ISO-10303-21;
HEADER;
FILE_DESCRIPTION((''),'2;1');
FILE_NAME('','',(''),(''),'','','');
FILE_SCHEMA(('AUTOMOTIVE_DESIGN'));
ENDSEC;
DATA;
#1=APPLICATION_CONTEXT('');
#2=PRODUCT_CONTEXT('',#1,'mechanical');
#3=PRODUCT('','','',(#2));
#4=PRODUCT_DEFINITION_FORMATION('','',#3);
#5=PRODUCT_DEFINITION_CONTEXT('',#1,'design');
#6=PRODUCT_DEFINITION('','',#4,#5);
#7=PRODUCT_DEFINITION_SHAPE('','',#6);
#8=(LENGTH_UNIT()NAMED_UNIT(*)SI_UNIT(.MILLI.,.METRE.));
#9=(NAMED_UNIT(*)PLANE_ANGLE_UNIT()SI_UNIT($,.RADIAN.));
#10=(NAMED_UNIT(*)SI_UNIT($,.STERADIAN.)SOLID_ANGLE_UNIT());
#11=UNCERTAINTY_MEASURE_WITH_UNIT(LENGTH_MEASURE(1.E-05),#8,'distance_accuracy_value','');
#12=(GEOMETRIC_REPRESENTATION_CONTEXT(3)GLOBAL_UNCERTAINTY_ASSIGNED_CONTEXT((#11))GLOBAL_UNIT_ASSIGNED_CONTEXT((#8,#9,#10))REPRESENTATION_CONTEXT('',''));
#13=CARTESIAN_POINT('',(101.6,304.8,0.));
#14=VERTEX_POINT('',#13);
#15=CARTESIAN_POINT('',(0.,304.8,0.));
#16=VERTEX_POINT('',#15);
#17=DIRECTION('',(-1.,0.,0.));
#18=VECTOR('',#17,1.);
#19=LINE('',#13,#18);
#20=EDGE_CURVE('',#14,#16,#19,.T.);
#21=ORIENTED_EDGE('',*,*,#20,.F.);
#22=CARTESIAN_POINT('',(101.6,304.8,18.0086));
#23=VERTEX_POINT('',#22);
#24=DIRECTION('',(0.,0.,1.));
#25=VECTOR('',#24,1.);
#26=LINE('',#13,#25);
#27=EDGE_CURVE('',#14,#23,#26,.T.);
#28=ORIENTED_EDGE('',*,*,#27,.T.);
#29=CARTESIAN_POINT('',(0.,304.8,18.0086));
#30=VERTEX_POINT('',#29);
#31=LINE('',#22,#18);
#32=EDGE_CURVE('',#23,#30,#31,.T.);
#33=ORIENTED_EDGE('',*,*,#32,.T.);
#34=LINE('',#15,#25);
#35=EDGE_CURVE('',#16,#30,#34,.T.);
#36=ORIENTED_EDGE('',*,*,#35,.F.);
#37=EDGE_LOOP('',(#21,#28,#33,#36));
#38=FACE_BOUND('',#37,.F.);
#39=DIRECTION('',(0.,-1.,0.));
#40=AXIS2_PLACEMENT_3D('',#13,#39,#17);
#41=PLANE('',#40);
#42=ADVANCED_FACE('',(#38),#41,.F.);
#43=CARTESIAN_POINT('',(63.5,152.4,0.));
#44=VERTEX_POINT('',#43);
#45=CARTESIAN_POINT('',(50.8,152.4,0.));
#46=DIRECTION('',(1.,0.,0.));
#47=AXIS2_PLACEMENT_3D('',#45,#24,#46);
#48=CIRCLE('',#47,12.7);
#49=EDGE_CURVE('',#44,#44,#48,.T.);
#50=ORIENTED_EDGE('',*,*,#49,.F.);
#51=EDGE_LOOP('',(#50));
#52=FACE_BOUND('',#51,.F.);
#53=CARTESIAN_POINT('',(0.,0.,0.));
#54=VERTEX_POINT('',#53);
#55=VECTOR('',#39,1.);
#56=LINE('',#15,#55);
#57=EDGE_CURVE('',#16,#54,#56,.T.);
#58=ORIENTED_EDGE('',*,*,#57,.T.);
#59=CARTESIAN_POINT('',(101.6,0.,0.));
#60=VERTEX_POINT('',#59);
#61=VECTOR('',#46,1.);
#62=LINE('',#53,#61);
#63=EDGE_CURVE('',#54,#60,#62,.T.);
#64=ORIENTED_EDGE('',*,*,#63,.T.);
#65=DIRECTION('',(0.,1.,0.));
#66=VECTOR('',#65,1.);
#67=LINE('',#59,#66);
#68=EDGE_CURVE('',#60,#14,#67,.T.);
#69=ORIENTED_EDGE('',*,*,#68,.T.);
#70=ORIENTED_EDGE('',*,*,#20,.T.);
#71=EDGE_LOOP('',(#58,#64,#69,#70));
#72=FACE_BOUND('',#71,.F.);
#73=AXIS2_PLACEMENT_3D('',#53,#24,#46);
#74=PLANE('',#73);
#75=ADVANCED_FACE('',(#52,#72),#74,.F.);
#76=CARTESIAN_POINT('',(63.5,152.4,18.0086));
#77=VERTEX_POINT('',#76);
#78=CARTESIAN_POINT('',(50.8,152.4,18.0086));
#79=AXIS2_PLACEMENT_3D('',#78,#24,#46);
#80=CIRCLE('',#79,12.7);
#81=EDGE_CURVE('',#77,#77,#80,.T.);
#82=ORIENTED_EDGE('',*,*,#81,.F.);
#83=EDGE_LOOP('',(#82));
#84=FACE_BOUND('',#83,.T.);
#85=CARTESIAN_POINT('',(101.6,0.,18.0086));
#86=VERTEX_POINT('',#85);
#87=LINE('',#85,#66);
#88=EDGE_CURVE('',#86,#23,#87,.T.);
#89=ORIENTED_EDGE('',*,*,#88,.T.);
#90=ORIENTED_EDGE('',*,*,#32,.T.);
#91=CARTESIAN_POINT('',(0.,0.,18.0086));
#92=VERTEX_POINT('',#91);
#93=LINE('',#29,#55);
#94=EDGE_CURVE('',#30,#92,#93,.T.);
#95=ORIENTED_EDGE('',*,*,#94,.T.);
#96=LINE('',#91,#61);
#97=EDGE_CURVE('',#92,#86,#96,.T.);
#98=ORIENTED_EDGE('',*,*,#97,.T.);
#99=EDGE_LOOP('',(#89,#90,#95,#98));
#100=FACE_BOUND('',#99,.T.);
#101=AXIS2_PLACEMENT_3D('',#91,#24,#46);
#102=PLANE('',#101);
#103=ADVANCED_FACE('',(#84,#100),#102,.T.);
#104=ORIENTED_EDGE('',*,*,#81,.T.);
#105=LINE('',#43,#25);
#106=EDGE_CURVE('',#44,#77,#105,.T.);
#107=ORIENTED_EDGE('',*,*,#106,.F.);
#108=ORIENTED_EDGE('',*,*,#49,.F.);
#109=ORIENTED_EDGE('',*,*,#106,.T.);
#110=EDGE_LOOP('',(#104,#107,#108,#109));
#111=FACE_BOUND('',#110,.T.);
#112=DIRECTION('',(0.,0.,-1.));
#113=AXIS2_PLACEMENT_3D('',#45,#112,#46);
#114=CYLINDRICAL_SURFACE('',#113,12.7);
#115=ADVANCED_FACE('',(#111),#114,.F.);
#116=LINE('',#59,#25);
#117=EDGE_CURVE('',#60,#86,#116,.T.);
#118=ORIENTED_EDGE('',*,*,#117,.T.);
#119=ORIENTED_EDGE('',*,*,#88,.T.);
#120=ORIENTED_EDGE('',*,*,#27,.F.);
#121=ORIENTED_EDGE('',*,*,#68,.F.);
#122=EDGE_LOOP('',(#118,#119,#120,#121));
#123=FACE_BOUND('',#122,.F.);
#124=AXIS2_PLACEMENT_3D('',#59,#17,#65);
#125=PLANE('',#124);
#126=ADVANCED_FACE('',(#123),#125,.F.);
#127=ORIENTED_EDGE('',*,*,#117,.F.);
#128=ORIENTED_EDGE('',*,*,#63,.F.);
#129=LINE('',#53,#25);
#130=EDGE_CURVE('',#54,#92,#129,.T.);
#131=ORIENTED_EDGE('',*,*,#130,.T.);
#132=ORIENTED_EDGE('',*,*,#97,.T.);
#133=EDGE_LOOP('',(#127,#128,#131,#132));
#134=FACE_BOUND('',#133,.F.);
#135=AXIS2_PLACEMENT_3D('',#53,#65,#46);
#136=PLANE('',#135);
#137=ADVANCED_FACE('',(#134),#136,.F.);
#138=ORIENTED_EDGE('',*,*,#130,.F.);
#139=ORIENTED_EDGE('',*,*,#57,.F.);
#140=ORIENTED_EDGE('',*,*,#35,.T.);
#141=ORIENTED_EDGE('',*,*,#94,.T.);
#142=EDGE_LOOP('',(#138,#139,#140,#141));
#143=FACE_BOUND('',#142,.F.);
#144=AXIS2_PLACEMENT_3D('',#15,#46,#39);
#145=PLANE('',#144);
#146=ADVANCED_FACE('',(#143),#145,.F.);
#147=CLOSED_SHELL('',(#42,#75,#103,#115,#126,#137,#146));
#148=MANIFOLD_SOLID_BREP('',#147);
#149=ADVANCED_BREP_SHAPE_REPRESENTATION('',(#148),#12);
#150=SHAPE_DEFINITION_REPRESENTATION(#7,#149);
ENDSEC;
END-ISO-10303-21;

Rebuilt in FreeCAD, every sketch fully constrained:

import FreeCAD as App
import Part
import Sketcher

V = App.Vector
Q = App.Units.Quantity


def add_polygon(sketch, points):
    """Adds a closed chain of lines whose ends are joined by coincident constraints."""
    first, n = sketch.GeometryCount, len(points)
    for a, b in zip(points, points[1:] + points[:1]):
        sketch.addGeometry(Part.LineSegment(App.Vector(*a, 0), App.Vector(*b, 0)), False)
    for i in range(n):
        sketch.addConstraint(Sketcher.Constraint("Coincident", first + i, 2, first + (i + 1) % n, 1))

doc = App.newDocument("Part")
body = doc.addObject("PartDesign::Body", "Body")

sketch1 = body.newObject("Sketcher::SketchObject", "Sketch")
sketch1.AttachmentSupport = (doc.getObject("XY_Plane"), [""])
sketch1.MapMode = "FlatFace"
add_polygon(sketch1, [(0, 305), (0, 0), (102, 0), (102, 305)])
sketch1.addGeometry(Part.Circle(V(51, 152, 0), V(0, 0, 1), 13), False)
sketch1.addConstraint([
    Sketcher.Constraint("Vertical", 0),
    Sketcher.Constraint("Horizontal", 1),
    Sketcher.Constraint("Vertical", 2),
    Sketcher.Constraint("Horizontal", 3),
    Sketcher.Constraint("Coincident", 0, 2, -1, 1),
    Sketcher.Constraint("Diameter", 4, Q("1 in")),
    Sketcher.Constraint("DistanceX", 1, 1, 1, 2, Q("4 in")),
    Sketcher.Constraint("DistanceY", 0, 2, 0, 1, Q("12 in")),
    Sketcher.Constraint("DistanceX", -1, 1, 4, 3, Q("2 in")),
    Sketcher.Constraint("DistanceY", -1, 1, 4, 3, Q("6 in")),
])
pad1 = body.newObject("PartDesign::Pad", "Pad")
pad1.Profile = sketch1
pad1.Length = Q("0.709 in")

doc.recompute()
